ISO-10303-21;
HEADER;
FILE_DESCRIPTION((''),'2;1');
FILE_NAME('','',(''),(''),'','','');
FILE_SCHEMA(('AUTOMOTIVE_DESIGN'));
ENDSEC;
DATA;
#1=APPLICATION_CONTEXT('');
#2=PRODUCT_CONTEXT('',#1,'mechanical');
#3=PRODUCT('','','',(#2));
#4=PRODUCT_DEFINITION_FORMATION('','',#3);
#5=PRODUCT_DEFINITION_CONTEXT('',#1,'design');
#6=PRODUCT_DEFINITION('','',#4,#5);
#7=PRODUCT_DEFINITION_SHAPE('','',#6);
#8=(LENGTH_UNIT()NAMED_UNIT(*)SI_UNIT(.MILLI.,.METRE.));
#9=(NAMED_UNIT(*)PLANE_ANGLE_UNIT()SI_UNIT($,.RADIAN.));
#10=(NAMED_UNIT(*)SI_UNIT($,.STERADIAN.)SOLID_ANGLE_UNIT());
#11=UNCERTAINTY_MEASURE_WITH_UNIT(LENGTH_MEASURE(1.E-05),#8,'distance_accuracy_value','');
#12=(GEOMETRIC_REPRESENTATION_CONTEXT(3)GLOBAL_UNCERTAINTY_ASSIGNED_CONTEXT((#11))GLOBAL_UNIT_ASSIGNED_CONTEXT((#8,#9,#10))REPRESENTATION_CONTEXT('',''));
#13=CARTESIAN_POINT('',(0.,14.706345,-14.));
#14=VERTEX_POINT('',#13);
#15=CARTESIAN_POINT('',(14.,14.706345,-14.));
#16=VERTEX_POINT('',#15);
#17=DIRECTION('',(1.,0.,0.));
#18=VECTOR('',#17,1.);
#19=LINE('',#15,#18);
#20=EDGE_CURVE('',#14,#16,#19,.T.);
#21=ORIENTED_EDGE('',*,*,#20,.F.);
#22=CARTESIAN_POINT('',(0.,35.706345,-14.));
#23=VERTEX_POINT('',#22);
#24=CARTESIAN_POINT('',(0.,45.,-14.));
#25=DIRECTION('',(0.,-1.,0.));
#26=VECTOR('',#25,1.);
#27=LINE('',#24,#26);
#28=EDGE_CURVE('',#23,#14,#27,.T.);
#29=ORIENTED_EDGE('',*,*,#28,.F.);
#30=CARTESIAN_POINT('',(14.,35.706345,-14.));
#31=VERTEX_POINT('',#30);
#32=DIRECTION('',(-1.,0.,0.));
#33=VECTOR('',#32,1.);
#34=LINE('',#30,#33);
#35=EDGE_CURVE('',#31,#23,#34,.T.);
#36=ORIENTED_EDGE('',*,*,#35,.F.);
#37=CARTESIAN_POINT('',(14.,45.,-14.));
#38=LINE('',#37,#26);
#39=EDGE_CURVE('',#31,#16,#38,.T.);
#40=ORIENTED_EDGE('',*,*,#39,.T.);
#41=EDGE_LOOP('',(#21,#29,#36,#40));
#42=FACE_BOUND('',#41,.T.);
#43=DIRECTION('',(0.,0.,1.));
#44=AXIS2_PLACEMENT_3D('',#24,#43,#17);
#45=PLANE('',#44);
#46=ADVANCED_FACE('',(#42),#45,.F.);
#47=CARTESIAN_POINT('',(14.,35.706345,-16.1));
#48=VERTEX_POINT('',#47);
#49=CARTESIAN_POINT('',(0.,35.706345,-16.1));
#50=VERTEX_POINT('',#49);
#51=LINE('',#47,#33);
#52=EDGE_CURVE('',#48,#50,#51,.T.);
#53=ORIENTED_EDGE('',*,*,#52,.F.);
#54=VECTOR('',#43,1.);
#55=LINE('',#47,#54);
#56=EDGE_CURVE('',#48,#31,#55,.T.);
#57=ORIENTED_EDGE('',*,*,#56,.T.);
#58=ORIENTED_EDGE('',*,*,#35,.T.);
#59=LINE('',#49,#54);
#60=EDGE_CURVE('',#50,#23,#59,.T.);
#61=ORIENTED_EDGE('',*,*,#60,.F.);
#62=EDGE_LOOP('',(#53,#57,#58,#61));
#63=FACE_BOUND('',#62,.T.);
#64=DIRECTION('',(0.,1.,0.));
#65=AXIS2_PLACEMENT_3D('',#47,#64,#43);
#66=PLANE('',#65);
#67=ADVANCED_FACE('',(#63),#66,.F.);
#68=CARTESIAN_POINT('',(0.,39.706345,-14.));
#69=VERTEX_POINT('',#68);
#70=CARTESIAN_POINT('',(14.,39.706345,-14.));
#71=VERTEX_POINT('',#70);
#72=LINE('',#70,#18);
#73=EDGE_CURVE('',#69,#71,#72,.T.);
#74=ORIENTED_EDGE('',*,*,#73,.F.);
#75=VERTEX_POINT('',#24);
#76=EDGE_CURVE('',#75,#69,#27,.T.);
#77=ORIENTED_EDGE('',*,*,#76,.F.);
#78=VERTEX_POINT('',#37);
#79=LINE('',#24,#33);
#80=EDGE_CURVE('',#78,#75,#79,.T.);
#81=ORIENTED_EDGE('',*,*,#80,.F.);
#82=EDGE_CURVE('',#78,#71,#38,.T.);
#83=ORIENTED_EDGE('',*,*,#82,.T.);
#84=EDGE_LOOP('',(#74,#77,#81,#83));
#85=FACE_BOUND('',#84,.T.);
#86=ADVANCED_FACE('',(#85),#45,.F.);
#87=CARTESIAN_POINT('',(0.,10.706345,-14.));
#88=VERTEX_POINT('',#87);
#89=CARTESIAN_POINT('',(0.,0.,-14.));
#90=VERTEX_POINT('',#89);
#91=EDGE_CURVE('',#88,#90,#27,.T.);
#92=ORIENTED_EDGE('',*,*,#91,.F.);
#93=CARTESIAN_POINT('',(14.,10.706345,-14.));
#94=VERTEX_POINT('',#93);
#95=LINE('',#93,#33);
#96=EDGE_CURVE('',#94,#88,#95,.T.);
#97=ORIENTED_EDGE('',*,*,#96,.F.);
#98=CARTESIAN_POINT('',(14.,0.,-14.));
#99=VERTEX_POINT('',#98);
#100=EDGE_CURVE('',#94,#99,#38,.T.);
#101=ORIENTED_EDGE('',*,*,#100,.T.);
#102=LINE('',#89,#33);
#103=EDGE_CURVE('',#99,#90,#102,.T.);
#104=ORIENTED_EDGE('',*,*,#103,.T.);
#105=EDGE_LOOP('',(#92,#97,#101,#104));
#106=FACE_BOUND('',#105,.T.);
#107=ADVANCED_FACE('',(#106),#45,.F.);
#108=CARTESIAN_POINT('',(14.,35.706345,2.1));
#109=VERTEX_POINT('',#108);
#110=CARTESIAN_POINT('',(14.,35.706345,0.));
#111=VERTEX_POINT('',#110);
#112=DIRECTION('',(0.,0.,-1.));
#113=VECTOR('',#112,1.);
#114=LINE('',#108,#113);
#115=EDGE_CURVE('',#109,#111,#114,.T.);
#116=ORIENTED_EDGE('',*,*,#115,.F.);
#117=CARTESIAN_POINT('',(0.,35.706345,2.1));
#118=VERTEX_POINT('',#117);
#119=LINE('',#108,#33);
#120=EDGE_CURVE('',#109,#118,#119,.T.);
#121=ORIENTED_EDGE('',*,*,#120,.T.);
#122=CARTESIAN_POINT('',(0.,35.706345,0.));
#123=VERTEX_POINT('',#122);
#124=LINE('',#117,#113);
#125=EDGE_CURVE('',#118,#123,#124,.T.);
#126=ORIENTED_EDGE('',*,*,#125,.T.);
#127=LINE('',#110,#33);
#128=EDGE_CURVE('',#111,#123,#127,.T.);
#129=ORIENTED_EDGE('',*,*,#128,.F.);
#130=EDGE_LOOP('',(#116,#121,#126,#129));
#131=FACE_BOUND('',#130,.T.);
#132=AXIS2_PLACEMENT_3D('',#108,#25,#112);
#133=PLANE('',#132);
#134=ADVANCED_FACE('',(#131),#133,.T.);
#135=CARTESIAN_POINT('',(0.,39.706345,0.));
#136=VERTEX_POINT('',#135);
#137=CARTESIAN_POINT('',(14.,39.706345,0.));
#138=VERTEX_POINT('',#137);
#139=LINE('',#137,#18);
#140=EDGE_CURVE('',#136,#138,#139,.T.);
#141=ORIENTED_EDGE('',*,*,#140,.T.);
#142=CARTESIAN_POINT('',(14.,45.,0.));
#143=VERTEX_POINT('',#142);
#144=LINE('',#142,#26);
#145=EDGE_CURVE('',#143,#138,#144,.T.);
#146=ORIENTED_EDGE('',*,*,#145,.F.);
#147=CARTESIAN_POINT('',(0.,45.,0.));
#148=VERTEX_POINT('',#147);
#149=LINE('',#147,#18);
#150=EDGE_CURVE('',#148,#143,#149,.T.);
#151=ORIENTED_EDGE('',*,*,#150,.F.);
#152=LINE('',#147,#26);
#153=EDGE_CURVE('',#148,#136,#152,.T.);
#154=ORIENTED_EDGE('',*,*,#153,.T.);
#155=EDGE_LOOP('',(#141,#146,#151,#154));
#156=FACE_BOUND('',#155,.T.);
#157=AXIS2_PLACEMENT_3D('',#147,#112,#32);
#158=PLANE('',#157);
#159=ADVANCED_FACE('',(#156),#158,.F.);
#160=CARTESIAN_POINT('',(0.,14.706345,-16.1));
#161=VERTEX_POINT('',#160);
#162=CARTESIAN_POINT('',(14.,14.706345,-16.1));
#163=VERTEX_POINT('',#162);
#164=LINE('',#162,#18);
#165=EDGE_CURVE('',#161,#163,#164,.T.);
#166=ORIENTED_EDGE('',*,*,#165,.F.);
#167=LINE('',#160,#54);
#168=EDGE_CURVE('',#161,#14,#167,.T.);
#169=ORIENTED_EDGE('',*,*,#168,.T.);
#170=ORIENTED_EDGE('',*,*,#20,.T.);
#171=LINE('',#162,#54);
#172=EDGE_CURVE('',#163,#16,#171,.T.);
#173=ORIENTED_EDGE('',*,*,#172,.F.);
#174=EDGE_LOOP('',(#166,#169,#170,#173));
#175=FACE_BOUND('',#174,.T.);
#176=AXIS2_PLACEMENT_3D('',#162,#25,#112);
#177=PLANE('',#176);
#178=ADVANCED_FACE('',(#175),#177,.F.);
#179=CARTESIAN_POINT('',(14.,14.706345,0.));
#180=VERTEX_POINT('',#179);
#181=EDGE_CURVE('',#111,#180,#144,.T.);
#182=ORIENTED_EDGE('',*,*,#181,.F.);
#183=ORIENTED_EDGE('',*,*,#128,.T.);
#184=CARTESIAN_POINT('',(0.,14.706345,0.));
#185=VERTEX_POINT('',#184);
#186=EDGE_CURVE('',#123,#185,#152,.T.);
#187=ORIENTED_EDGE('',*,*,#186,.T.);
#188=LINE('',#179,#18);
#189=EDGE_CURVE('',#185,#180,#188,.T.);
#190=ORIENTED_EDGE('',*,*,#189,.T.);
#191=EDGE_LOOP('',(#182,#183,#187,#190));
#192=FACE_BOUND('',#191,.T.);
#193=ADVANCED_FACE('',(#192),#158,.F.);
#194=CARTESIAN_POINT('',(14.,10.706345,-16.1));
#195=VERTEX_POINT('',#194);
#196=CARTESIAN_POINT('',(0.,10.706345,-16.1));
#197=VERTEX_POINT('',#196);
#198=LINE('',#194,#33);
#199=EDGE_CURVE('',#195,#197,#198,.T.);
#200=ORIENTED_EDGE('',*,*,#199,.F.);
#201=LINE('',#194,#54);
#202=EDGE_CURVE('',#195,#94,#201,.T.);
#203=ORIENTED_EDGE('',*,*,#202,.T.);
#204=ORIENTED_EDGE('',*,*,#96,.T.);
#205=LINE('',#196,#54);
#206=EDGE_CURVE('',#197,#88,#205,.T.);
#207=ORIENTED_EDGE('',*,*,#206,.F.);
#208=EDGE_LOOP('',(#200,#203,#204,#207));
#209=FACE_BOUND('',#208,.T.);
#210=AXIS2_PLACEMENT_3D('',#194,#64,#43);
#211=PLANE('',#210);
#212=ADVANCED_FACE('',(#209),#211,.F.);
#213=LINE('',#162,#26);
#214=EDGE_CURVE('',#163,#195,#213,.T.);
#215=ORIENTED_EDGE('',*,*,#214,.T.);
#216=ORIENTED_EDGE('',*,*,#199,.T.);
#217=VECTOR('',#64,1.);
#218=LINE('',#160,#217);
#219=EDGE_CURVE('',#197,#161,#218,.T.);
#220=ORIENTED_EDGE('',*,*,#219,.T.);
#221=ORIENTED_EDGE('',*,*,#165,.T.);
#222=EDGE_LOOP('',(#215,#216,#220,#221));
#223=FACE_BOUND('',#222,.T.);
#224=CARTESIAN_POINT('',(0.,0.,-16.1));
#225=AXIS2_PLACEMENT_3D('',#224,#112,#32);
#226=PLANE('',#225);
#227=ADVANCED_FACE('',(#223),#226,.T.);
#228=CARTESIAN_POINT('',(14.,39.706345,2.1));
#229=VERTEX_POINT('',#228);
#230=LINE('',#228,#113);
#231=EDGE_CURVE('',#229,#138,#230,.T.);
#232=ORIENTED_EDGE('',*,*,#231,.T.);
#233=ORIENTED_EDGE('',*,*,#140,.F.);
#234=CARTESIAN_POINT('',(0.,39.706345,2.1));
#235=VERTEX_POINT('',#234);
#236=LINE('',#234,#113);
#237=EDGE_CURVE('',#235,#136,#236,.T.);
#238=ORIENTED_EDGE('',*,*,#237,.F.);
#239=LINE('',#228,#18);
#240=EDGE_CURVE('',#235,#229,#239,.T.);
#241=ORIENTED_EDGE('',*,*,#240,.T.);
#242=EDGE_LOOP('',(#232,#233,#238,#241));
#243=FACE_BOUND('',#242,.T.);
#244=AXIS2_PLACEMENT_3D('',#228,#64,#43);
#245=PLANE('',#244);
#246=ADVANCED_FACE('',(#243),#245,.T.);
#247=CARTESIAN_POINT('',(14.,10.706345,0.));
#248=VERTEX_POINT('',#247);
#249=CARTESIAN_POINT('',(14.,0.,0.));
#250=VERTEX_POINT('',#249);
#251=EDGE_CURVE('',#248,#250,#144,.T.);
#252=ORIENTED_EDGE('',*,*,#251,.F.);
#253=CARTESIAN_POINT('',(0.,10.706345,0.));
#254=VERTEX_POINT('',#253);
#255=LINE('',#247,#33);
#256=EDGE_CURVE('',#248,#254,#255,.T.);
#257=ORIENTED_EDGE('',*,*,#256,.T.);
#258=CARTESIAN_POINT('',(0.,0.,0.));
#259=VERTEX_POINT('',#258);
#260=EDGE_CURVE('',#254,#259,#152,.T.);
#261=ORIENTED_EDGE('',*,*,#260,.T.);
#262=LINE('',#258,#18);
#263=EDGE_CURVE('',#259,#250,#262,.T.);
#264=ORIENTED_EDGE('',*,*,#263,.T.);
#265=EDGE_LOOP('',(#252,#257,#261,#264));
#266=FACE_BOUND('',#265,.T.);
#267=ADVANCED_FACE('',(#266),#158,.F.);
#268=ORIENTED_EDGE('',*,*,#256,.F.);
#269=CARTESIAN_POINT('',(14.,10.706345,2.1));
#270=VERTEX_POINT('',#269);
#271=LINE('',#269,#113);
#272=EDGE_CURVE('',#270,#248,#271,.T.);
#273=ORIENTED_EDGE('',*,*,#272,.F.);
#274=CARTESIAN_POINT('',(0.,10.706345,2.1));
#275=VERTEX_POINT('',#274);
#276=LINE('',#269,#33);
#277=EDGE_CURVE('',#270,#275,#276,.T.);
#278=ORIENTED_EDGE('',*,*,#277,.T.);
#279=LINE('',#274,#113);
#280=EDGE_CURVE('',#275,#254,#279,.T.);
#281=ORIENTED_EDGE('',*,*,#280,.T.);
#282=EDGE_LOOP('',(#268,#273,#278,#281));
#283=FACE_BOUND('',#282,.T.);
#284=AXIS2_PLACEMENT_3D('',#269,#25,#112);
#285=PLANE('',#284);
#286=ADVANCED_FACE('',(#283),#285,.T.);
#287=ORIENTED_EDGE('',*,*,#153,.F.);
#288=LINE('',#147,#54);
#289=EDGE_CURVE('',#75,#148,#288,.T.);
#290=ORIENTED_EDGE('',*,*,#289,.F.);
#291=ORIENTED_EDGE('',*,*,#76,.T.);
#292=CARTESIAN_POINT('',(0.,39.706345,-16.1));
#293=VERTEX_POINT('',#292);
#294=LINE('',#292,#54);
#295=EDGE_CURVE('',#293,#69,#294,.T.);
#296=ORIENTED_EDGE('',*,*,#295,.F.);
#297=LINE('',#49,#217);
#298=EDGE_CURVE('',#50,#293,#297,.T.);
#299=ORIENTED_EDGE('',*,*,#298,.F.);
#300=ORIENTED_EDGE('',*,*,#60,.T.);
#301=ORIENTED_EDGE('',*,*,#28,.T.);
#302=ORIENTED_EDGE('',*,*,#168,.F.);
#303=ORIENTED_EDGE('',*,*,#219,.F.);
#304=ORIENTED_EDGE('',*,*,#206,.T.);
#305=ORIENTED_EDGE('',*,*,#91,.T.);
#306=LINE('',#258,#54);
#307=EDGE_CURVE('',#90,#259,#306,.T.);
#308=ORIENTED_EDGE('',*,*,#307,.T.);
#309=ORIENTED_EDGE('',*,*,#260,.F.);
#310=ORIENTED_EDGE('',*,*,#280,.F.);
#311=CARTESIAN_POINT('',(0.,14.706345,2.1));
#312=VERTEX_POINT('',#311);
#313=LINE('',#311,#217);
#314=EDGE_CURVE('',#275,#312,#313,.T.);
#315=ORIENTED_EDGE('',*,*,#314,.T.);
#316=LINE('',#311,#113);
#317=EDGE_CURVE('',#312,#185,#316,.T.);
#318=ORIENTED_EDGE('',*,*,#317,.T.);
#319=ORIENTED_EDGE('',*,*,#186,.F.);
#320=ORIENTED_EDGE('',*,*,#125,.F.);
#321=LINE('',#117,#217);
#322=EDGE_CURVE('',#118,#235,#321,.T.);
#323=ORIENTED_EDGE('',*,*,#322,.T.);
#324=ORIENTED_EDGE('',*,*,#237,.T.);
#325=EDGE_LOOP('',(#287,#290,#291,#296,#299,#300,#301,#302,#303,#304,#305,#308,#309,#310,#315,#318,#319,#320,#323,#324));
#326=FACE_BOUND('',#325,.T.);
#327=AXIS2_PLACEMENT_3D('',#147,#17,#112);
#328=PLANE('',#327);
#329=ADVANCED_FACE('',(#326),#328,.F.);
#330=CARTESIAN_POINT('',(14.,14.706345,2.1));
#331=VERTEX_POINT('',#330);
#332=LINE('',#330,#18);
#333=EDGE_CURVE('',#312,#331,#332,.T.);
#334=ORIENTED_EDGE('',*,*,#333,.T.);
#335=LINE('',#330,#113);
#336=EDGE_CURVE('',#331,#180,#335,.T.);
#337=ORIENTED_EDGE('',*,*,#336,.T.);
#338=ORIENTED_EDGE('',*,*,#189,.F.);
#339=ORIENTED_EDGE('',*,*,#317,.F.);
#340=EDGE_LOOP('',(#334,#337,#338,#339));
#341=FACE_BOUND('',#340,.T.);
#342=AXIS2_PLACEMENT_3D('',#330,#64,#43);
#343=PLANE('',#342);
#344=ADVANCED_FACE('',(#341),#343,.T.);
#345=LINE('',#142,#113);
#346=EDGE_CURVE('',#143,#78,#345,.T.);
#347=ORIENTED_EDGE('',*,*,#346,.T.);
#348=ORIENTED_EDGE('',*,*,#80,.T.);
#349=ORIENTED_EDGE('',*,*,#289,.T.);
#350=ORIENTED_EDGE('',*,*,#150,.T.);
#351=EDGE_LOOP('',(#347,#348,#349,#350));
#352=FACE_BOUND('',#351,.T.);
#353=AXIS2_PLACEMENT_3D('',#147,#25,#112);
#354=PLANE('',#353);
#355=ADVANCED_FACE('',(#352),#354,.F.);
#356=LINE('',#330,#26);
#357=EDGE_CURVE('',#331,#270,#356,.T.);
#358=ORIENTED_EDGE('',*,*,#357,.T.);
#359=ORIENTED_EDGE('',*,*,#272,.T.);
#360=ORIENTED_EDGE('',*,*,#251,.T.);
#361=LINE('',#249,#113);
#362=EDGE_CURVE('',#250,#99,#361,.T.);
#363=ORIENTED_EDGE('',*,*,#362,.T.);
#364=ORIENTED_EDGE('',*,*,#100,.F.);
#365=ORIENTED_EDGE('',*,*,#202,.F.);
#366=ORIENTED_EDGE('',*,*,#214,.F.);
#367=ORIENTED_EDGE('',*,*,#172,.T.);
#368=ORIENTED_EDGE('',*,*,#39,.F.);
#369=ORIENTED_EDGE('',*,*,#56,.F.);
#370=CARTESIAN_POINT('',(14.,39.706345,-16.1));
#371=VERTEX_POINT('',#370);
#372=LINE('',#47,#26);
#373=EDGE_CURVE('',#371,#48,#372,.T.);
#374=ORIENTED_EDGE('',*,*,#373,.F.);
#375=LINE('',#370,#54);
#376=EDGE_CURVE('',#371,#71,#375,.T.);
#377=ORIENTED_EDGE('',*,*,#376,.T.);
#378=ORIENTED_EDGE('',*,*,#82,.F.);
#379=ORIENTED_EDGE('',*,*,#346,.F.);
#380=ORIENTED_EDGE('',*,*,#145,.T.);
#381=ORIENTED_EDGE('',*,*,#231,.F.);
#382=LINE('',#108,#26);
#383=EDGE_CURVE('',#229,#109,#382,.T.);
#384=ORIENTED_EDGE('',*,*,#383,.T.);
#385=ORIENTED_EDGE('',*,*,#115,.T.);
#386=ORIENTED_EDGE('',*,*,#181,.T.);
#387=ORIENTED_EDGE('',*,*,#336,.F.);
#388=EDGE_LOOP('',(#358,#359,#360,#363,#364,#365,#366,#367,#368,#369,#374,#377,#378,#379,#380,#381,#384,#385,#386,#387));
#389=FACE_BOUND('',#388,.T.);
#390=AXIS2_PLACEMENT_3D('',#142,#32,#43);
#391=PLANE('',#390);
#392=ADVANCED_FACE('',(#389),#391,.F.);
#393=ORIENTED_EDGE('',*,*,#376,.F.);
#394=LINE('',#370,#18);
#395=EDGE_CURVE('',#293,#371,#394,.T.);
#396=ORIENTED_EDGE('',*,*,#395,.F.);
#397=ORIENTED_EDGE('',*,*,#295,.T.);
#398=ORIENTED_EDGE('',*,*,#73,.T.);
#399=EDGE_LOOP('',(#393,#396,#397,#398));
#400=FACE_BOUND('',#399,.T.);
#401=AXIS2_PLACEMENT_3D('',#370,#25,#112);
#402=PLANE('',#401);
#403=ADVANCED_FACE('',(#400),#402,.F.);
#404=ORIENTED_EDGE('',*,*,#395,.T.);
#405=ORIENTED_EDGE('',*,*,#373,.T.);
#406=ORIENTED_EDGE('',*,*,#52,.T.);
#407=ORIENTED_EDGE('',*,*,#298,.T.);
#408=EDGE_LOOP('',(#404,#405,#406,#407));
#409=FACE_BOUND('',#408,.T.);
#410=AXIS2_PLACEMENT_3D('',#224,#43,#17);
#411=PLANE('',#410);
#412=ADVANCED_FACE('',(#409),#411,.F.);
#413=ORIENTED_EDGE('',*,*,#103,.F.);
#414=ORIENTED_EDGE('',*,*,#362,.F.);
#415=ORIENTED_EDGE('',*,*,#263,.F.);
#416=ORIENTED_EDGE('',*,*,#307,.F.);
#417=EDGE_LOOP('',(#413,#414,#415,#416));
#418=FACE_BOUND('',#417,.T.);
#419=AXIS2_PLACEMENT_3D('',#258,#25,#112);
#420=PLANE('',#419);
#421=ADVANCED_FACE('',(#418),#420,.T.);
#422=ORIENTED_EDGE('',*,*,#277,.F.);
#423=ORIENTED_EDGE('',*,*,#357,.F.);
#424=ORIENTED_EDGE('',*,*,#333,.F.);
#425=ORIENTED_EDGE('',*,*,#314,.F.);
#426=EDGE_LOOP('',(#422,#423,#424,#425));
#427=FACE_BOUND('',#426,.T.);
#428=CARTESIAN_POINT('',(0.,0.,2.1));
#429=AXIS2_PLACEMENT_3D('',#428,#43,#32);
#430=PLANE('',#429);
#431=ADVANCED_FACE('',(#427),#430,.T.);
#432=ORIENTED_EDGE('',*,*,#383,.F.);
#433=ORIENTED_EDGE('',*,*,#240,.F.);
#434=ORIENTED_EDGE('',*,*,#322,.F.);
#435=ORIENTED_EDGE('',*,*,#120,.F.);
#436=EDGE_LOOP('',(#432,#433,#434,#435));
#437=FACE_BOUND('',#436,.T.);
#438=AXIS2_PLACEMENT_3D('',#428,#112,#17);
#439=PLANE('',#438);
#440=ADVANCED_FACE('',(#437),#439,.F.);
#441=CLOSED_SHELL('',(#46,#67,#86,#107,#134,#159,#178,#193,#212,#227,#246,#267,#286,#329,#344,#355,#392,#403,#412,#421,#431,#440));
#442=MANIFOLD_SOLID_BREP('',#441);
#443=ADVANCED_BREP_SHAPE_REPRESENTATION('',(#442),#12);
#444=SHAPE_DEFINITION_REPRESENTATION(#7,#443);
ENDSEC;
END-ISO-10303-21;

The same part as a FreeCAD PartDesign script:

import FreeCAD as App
import Part
import Sketcher

V = App.Vector

doc = App.newDocument("Part")
body = doc.addObject("PartDesign::Body", "Body")

sketch1 = body.newObject("Sketcher::SketchObject", "Sketch")
sketch1.AttachmentSupport = (doc.getObject("XZ_Plane"), [""])
sketch1.MapMode = "FlatFace"
sketch1.addGeometry([
    Part.LineSegment(V(0, -14, 0), V(0, 0, 0)),
    Part.LineSegment(V(0, 0, 0), V(14, 0, 0)),
    Part.LineSegment(V(14, 0, 0), V(14, -14, 0)),
    Part.LineSegment(V(14, -14, 0), V(0, -14, 0)),
], False)
sketch1.addConstraint([
    Sketcher.Constraint("Coincident", 0, 2, 1, 1),
    Sketcher.Constraint("Coincident", 1, 2, 2, 1),
    Sketcher.Constraint("Coincident", 2, 2, 3, 1),
    Sketcher.Constraint("Coincident", 3, 2, 0, 1),
    Sketcher.Constraint("Vertical", 0),
    Sketcher.Constraint("Horizontal", 1),
    Sketcher.Constraint("Vertical", 2),
    Sketcher.Constraint("Horizontal", 3),
    Sketcher.Constraint("Coincident", 0, 2, -1, 1),
    Sketcher.Constraint("Equal", 3, 0),
    Sketcher.Constraint("DistanceX", 1, 1, 1, 2, 14.0),
])
pad1 = body.newObject("PartDesign::Pad", "Pad")
pad1.Profile = sketch1
pad1.Length = 45
pad1.Reversed = True

sketch2 = body.newObject("Sketcher::SketchObject", "Sketch001")
sketch2.AttachmentSupport = (doc.getObject("XY_Plane"), [""])
sketch2.MapMode = "FlatFace"
sketch2.AttachmentOffset = App.Placement(V(0, 0, -14), App.Rotation())
sketch2.addGeometry([
    Part.LineSegment(V(14, 39.7, 0), V(14, 35.7, 0)),
    Part.LineSegment(V(14, 35.7, 0), V(0, 35.7, 0)),
    Part.LineSegment(V(0, 35.7, 0), V(0, 39.7, 0)),
    Part.LineSegment(V(0, 39.7, 0), V(14, 39.7, 0)),
    Part.LineSegment(V(14, 14.7, 0), V(14, 10.7, 0)),
    Part.LineSegment(V(14, 10.7, 0), V(0, 10.7, 0)),
    Part.LineSegment(V(0, 10.7, 0), V(0, 14.7, 0)),
    Part.LineSegment(V(0, 14.7, 0), V(14, 14.7, 0)),
], False)
sketch2.addConstraint([
    Sketcher.Constraint("Coincident", 0, 2, 1, 1),
    Sketcher.Constraint("Coincident", 1, 2, 2, 1),
    Sketcher.Constraint("Coincident", 2, 2, 3, 1),
    Sketcher.Constraint("Coincident", 3, 2, 0, 1),
    Sketcher.Constraint("Coincident", 4, 2, 5, 1),
    Sketcher.Constraint("Coincident", 5, 2, 6, 1),
    Sketcher.Constraint("Coincident", 6, 2, 7, 1),
    Sketcher.Constraint("Coincident", 7, 2, 4, 1),
    Sketcher.Constraint("Vertical", 0),
    Sketcher.Constraint("Horizontal", 1),
    Sketcher.Constraint("Vertical", 2),
    Sketcher.Constraint("Horizontal", 3),
    Sketcher.Constraint("Vertical", 4),
    Sketcher.Constraint("Horizontal", 5),
    Sketcher.Constraint("Vertical", 6),
    Sketcher.Constraint("Horizontal", 7),
    Sketcher.Constraint("PointOnObject", 1, 2, -2),
    Sketcher.Constraint("PointOnObject", 5, 2, -2),
    Sketcher.Constraint("Vertical", 3, 2, 4, 2),
    Sketcher.Constraint("Equal", 2, 4),
    Sketcher.Constraint("DistanceX", 1, 2, 1, 1, 14.0),
    Sketcher.Constraint("DistanceY", 0, 2, 0, 1, 4.0),
    Sketcher.Constraint("DistanceY", 4, 2, 0, 2, 25.0),
    Sketcher.Constraint("DistanceY", -1, 1, 0, 2, 35.706345),
])
pad2 = body.newObject("PartDesign::Pad", "Pad001")
pad2.Profile = sketch2
pad2.Length = 2.1
pad2.Reversed = True
doc.recompute()

datumplane = body.newObject("PartDesign::Plane", "DatumPlane")
datumplane.AttachmentSupport = (doc.getObject("XY_Plane"), [""])
datumplane.MapMode = "FlatFace"
datumplane.AttachmentOffset = App.Placement(V(0, 0, -7), App.Rotation())
mirrored = body.newObject("PartDesign::Mirrored", "Mirrored")
mirrored.Originals = [pad2]
mirrored.MirrorPlane = (datumplane, [""])
body.Tip = mirrored

doc.recompute()
